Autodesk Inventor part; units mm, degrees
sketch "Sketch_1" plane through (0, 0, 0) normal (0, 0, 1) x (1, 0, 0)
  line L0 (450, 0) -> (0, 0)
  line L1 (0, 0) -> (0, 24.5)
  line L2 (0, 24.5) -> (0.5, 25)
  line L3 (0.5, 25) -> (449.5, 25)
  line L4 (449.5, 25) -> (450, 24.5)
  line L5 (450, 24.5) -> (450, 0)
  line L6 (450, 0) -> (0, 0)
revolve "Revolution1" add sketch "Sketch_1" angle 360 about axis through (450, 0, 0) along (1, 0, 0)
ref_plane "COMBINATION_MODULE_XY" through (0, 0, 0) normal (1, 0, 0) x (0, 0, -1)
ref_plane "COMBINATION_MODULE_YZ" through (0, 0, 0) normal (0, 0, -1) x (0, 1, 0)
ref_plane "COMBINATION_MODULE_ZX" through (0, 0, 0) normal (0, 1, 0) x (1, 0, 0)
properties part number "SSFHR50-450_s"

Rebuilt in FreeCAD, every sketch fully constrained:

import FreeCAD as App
import Part
import Sketcher


def add_polygon(sketch, points):
    """Adds a closed chain of lines whose ends are joined by coincident constraints."""
    first, n = sketch.GeometryCount, len(points)
    for a, b in zip(points, points[1:] + points[:1]):
        sketch.addGeometry(Part.LineSegment(App.Vector(*a, 0), App.Vector(*b, 0)), False)
    for i in range(n):
        sketch.addConstraint(Sketcher.Constraint("Coincident", first + i, 2, first + (i + 1) % n, 1))

doc = App.newDocument("Part")
body = doc.addObject("PartDesign::Body", "Body")

# Sketch on XY plane
sketch1 = body.newObject("Sketcher::SketchObject", "Sketch")
sketch1.AttachmentSupport = (doc.getObject("XY_Plane"), [""])
sketch1.MapMode = "FlatFace"
add_polygon(sketch1, [(0, 0), (450, 0), (450, 24.5), (449.5, 25), (0.5, 25), (0, 24.5)])  # lines 0-5
sketch1.addConstraint([
    Sketcher.Constraint("Horizontal", 0),
    Sketcher.Constraint("Vertical", 1),
    Sketcher.Constraint("Horizontal", 3),
    Sketcher.Constraint("Vertical", 5),
    Sketcher.Constraint("Coincident", 5, 2, -1, 1),
    Sketcher.Constraint("Perpendicular", 2, 4),
    Sketcher.Constraint("Horizontal", 1, 2, 4, 2),
    Sketcher.Constraint("Equal", 2, 4),
    Sketcher.Constraint("DistanceX", 0, 1, 0, 2, 450.0),
    Sketcher.Constraint("DistanceX", 3, 2, 3, 1, 449.0),
    Sketcher.Constraint("DistanceY", 1, 1, 1, 2, 24.5),
])
revolution = body.newObject("PartDesign::Revolution", "Revolution")
revolution.Profile = sketch1
revolution.ReferenceAxis = (sketch1, ["H_Axis"])
revolution.Angle = 360

doc.recompute()
